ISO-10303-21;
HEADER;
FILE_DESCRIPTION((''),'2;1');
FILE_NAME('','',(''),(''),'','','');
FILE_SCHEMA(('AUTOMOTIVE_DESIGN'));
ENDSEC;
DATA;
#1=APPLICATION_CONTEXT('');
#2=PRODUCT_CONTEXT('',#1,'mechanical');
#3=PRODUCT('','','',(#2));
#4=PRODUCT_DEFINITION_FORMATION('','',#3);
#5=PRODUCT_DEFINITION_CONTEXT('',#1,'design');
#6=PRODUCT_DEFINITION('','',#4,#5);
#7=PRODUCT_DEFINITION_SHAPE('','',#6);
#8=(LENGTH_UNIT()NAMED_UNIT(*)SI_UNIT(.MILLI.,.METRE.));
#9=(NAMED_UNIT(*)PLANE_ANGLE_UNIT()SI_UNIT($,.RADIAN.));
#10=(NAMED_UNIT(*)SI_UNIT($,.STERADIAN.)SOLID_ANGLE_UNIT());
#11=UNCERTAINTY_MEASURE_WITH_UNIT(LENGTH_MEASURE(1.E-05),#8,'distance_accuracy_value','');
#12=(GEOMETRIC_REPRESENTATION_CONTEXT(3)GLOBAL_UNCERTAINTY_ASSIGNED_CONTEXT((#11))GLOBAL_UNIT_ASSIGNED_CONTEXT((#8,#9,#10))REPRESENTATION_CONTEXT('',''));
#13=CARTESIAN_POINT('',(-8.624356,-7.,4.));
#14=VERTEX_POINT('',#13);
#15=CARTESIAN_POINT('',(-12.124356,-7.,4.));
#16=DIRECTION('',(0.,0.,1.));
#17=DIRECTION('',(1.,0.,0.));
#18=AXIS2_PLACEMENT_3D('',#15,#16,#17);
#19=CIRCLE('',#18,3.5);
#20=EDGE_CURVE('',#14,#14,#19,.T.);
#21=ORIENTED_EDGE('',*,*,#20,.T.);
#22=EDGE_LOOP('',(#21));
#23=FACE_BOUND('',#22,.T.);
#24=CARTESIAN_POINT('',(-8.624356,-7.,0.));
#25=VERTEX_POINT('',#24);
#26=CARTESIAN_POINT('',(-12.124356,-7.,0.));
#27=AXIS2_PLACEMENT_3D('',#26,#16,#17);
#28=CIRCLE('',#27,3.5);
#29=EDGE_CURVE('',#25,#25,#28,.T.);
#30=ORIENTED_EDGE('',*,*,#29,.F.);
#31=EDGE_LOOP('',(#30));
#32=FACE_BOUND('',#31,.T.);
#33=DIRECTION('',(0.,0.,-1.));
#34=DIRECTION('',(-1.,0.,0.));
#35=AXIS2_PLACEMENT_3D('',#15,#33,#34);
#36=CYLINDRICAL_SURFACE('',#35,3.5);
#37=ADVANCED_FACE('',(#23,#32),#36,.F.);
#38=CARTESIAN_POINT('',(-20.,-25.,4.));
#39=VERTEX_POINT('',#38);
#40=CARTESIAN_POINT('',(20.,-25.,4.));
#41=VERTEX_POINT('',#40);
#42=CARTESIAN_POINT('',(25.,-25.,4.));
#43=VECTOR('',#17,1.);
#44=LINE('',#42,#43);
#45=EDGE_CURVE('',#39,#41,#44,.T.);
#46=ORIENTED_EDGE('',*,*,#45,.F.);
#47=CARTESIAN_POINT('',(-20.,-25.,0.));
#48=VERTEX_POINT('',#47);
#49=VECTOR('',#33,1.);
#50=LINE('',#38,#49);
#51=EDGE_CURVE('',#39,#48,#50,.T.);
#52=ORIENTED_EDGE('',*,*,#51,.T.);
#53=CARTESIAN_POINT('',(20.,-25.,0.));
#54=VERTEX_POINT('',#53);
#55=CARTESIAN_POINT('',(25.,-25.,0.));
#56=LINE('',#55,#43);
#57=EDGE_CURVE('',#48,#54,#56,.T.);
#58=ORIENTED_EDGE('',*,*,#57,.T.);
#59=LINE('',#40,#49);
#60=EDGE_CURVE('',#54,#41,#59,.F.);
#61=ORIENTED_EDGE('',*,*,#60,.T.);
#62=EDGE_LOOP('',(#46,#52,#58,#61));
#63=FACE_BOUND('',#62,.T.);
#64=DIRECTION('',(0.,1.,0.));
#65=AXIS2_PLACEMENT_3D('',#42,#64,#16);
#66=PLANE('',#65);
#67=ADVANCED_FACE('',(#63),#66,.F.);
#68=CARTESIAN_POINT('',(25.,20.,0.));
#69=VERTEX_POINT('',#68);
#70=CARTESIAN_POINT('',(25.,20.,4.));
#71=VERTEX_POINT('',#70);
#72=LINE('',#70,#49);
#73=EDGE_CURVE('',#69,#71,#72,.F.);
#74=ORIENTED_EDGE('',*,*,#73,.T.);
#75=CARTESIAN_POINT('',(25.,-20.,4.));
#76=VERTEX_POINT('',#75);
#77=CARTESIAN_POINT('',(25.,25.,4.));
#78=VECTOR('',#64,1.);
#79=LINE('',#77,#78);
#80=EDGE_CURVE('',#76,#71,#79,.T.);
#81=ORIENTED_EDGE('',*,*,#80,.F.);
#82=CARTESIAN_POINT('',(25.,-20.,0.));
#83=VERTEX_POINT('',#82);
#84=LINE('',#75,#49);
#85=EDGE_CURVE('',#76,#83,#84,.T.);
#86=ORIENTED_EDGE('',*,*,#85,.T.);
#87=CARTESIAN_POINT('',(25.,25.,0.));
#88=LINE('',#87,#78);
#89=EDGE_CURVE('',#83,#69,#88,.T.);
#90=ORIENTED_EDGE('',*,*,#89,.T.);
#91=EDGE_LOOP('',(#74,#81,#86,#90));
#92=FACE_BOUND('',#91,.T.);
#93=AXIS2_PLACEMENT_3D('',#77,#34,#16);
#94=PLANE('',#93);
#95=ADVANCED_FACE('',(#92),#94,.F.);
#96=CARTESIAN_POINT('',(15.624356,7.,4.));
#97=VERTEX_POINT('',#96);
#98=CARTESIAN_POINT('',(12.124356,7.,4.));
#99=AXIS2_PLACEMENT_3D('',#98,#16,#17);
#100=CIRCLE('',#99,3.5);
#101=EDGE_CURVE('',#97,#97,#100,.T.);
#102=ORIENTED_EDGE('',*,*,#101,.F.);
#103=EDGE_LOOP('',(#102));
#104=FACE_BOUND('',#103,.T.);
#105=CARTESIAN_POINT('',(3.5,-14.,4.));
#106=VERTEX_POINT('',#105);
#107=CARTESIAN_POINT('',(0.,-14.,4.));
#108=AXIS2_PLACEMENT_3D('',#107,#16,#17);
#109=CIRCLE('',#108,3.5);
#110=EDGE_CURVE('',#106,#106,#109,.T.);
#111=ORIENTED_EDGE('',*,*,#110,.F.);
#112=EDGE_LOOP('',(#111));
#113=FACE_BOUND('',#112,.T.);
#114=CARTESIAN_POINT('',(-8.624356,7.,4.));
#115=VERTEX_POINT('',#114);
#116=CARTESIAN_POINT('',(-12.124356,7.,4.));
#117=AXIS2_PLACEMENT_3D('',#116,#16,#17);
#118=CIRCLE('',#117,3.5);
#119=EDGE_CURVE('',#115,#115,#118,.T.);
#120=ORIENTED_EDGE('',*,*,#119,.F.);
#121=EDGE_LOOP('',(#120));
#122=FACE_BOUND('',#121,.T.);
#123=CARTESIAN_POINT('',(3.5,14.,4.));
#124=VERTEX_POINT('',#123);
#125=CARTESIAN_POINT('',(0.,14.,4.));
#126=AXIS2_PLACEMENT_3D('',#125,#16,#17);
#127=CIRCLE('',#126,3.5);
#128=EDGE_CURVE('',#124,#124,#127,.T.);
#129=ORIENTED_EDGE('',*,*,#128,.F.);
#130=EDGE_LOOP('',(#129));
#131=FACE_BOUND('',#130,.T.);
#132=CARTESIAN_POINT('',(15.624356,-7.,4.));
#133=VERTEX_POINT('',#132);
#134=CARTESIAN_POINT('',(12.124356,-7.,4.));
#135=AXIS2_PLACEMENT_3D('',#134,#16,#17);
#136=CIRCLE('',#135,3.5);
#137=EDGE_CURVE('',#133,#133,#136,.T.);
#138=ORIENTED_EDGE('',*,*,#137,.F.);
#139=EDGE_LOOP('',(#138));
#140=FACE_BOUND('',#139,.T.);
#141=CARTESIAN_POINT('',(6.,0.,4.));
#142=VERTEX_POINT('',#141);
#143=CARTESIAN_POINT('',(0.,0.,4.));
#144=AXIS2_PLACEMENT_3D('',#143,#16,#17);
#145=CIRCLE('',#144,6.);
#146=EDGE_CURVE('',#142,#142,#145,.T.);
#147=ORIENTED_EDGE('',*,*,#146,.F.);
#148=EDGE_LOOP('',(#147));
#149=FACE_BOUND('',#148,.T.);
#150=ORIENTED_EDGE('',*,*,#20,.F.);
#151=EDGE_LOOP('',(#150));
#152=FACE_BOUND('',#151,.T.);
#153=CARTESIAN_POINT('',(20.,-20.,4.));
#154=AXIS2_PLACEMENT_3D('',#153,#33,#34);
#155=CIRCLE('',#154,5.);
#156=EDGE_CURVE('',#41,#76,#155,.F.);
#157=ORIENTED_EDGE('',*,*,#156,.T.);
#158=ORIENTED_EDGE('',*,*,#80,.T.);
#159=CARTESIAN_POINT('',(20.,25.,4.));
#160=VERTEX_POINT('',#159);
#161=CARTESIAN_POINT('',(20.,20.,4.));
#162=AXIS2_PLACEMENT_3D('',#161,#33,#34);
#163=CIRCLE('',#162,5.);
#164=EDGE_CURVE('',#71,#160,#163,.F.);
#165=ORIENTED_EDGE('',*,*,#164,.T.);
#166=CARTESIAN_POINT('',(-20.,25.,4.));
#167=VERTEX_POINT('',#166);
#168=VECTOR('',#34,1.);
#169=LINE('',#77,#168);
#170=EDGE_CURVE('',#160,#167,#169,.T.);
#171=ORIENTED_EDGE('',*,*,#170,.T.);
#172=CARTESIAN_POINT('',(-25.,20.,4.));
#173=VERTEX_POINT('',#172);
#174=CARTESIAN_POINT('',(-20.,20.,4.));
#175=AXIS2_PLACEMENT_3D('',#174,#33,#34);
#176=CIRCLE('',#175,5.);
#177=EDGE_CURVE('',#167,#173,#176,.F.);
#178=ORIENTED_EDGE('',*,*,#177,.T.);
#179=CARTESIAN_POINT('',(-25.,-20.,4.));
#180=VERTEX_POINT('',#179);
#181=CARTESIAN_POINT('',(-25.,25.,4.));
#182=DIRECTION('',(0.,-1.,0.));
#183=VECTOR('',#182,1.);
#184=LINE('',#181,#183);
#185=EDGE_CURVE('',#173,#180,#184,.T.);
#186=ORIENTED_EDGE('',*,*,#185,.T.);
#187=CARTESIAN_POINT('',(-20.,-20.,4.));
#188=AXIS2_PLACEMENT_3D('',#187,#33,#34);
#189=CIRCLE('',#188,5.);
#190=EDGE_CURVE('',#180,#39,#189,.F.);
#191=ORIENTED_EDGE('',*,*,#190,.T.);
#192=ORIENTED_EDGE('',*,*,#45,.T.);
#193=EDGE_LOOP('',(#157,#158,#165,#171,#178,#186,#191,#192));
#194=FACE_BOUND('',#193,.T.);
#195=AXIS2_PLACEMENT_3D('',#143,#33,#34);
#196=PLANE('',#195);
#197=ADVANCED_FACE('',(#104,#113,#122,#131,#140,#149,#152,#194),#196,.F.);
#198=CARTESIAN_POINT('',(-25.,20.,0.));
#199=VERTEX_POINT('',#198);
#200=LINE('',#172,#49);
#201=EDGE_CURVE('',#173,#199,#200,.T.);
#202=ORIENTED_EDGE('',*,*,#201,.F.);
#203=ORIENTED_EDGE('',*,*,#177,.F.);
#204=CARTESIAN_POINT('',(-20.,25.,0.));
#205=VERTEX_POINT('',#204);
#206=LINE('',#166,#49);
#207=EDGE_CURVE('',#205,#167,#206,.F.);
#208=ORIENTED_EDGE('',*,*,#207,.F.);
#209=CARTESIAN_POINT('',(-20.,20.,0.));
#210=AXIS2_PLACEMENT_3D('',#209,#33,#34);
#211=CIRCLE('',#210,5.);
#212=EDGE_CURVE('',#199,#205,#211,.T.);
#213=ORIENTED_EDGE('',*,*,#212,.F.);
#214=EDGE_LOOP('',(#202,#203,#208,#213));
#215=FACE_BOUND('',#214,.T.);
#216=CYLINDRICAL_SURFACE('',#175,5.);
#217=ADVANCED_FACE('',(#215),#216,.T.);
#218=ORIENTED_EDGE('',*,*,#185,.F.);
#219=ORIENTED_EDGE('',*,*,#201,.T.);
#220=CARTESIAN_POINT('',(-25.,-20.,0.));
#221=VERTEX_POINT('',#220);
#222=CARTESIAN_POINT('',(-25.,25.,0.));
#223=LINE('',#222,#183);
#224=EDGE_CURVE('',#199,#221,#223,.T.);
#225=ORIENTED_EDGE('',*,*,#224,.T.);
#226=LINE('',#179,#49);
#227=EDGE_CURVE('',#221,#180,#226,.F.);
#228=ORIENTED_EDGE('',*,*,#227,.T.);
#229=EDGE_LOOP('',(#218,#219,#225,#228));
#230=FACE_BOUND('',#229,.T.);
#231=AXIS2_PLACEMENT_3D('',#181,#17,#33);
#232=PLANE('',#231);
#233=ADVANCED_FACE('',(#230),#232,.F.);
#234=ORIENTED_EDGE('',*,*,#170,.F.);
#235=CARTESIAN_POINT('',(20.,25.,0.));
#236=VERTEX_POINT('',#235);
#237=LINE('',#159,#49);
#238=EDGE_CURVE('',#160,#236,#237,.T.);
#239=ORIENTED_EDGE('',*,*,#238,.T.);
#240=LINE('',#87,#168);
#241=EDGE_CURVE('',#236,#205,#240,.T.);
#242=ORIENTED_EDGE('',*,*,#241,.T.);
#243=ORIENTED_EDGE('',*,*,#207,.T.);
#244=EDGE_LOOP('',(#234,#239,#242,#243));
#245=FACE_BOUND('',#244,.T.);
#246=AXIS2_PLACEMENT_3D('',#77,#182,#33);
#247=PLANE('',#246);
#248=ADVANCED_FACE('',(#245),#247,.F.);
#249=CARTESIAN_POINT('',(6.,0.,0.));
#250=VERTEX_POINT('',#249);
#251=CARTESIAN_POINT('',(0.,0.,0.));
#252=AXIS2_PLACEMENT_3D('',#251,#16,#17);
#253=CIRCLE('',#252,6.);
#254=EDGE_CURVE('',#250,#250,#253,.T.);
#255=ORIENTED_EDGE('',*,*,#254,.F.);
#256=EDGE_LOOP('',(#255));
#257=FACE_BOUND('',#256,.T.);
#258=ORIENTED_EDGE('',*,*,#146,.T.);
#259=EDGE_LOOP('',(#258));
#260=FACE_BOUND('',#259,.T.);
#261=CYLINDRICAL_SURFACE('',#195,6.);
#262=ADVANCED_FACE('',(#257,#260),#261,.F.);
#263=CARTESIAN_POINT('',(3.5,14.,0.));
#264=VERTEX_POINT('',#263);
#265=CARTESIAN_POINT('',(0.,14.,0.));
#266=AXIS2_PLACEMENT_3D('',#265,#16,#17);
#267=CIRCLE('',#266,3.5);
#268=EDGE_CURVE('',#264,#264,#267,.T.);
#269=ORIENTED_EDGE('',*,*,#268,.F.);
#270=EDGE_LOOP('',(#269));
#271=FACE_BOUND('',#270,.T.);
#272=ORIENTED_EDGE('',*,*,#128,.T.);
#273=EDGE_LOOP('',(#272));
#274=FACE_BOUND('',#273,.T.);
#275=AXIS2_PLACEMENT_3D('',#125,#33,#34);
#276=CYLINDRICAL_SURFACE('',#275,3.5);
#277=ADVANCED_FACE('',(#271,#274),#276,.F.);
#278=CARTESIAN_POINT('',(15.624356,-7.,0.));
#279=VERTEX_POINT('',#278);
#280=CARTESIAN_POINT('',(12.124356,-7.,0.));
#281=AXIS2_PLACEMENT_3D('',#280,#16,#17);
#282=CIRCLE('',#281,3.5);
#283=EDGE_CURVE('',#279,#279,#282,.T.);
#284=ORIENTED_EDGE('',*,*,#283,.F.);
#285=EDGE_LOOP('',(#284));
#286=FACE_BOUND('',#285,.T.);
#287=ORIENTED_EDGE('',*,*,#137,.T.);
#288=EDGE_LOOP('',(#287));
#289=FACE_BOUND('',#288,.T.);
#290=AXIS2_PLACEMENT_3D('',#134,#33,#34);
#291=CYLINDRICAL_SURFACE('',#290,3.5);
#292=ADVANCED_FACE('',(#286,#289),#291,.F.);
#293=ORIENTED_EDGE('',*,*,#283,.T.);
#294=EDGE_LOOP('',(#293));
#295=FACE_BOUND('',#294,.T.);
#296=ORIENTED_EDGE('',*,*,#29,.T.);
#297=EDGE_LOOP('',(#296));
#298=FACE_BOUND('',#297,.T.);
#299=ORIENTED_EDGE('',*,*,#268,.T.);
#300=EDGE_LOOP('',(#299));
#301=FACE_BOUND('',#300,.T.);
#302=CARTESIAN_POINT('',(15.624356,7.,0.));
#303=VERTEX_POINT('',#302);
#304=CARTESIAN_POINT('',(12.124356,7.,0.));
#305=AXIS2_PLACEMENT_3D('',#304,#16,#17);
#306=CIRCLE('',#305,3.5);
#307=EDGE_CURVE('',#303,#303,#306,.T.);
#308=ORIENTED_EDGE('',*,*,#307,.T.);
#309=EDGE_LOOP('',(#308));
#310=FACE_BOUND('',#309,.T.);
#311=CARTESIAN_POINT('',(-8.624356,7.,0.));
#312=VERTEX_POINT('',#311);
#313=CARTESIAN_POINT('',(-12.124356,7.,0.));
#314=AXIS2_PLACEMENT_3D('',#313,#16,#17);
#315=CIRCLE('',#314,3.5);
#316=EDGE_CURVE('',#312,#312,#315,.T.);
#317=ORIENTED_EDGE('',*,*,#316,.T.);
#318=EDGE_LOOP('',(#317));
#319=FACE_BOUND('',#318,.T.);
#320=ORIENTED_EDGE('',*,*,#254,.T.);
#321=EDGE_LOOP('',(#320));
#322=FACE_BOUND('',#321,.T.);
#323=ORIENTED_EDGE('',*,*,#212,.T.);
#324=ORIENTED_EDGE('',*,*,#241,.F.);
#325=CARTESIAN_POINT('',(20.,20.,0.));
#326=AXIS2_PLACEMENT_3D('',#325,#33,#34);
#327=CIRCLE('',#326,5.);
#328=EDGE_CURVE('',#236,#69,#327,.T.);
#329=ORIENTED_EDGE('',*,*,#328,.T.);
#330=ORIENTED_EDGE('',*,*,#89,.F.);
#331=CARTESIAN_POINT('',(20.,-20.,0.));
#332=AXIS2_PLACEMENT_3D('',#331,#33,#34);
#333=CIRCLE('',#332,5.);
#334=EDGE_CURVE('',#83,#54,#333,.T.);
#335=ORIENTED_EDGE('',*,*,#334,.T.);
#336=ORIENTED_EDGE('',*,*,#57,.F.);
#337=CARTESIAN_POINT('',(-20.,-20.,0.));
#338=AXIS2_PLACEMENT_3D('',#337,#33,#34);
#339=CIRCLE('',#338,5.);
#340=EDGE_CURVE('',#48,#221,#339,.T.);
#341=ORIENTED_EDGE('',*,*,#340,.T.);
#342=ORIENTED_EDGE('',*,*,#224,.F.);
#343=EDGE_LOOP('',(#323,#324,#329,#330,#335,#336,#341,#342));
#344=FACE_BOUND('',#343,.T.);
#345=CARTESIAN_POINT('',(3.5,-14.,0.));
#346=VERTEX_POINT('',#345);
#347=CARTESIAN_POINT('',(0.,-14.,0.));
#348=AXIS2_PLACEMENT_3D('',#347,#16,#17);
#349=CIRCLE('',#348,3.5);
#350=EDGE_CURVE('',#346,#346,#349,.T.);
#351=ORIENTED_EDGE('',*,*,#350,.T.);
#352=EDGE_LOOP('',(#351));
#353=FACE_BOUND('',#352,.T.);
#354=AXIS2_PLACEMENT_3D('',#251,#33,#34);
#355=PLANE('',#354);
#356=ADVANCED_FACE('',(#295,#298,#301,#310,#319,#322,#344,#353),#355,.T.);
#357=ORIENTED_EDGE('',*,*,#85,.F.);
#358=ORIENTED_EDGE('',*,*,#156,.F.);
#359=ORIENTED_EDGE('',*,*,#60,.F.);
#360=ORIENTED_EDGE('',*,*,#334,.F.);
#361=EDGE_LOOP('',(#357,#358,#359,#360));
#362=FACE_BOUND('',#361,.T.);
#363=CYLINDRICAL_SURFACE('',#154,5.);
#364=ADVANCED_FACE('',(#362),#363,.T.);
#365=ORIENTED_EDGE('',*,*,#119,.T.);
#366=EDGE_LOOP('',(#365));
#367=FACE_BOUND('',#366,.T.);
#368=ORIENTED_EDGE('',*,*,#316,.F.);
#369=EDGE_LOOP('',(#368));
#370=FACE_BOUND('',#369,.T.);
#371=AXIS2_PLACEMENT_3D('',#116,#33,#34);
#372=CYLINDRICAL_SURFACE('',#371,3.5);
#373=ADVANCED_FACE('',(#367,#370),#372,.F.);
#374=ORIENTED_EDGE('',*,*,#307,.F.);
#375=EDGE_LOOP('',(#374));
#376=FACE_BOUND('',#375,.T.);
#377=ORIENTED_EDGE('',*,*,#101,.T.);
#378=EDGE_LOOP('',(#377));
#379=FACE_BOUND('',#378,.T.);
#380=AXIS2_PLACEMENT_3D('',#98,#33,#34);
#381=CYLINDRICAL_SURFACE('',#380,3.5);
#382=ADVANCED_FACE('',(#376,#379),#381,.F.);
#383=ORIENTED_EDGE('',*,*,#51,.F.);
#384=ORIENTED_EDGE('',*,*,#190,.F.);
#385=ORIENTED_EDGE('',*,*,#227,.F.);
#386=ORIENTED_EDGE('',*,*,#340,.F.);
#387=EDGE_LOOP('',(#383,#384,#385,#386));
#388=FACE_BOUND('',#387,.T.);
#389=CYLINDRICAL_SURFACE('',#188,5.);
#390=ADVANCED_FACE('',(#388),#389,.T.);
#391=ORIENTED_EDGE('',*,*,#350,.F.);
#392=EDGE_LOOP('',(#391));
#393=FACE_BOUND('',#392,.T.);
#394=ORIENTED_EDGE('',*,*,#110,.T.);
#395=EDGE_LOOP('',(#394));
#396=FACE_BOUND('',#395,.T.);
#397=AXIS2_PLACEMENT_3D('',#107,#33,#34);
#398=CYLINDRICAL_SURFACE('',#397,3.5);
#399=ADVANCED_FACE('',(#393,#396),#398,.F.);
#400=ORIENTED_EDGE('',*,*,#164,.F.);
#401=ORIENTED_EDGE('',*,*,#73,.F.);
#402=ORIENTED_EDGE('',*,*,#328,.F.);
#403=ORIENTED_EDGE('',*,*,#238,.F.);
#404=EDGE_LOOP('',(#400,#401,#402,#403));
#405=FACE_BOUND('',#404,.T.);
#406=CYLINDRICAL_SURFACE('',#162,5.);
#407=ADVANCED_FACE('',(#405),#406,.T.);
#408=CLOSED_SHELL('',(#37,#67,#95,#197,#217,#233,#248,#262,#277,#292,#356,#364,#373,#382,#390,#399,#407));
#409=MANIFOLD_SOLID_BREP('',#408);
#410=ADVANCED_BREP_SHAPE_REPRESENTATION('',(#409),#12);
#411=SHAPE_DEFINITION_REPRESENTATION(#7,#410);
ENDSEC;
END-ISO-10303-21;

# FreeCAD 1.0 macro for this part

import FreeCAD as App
import Part
import Sketcher
Q = App.Units.Quantity


def edges_at(feature, points):
    """Names of the edges that pass closest to the given points."""
    edges = feature.Shape.Edges
    near = lambda p: min(range(len(edges)), key=lambda i: edges[i].distToShape(Part.Vertex(*p))[0])
    return sorted({f"Edge{near(p) + 1}" for p in points})

doc = App.newDocument("Part")
body = doc.addObject("PartDesign::Body", "Body")

# Sketch on XY plane
sketch1 = doc.addObject("Sketcher::SketchObject", "Sketch")
body.addObject(sketch1)
sketch1.AttachmentSupport = (doc.XY_Plane, [""])
sketch1.MapMode = "FlatFace"
sketch1.addGeometry(Part.LineSegment(App.Vector(-25, 25, 0), App.Vector(-25, -25, 0)), False)
sketch1.addGeometry(Part.LineSegment(App.Vector(-25, -25, 0), App.Vector(25, -25, 0)), False)
sketch1.addGeometry(Part.LineSegment(App.Vector(25, -25, 0), App.Vector(25, 25, 0)), False)
sketch1.addGeometry(Part.LineSegment(App.Vector(25, 25, 0), App.Vector(-25, 25, 0)), False)
sketch1.addGeometry(Part.Circle(App.Vector(-12.1, -7, 0), App.Vector(0, 0, 1), 3.5), False)
sketch1.addGeometry(Part.Circle(App.Vector(0, -14, 0), App.Vector(0, 0, 1), 3.5), False)
sketch1.addGeometry(Part.Circle(App.Vector(12.1, -7, 0), App.Vector(0, 0, 1), 3.5), False)
sketch1.addGeometry(Part.Circle(App.Vector(-12.1, 7, 0), App.Vector(0, 0, 1), 3.5), False)
sketch1.addGeometry(Part.Circle(App.Vector(0, 0, 0), App.Vector(0, 0, 1), 6), False)
sketch1.addGeometry(Part.Circle(App.Vector(12.1, 7, 0), App.Vector(0, 0, 1), 3.5), False)
sketch1.addGeometry(Part.Circle(App.Vector(0, 14, 0), App.Vector(0, 0, 1), 3.5), False)
sketch1.addConstraint(Sketcher.Constraint("Coincident", 0, 2, 1, 1))
sketch1.addConstraint(Sketcher.Constraint("Coincident", 1, 2, 2, 1))
sketch1.addConstraint(Sketcher.Constraint("Coincident", 2, 2, 3, 1))
sketch1.addConstraint(Sketcher.Constraint("Coincident", 3, 2, 0, 1))
sketch1.addConstraint(Sketcher.Constraint("Vertical", 0))
sketch1.addConstraint(Sketcher.Constraint("Horizontal", 1))
sketch1.addConstraint(Sketcher.Constraint("Vertical", 2))
sketch1.addConstraint(Sketcher.Constraint("Horizontal", 3))
sketch1.addConstraint(Sketcher.Constraint("Coincident", 8, 3, -1, 1))
sketch1.addConstraint(Sketcher.Constraint("Equal", 4, 5))
sketch1.addConstraint(Sketcher.Constraint("Equal", 5, 6))
sketch1.addConstraint(Sketcher.Constraint("Equal", 6, 7))
sketch1.addConstraint(Sketcher.Constraint("Equal", 7, 9))
sketch1.addConstraint(Sketcher.Constraint("Equal", 9, 10))
sketch1.addConstraint(Sketcher.Constraint("Symmetric", 6, 3, 7, 3, -1, 1))
sketch1.addConstraint(Sketcher.Constraint("Symmetric", 4, 3, 9, 3, -1, 1))
sketch1.addConstraint(Sketcher.Constraint("Symmetric", 5, 3, 10, 3, -1, 1))
sketch1.addConstraint(Sketcher.Constraint("Symmetric", 0, 2, 2, 2, -1, 1))
sketch1.addConstraint(Sketcher.Constraint("Symmetric", 4, 3, 6, 3, -2))
sketch1.addConstraint(Sketcher.Constraint("PointOnObject", 5, 3, -2))
sketch1.addConstraint(Sketcher.Constraint("Equal", 3, 0))
sketch1.addConstraint(Sketcher.Constraint("Diameter", 4, Q("7 mm")))
sketch1.addConstraint(Sketcher.Constraint("Diameter", 8, Q("12 mm")))
sketch1.addConstraint(Sketcher.Constraint("DistanceX", 1, 1, 1, 2, Q("50 mm")))
sketch1.addConstraint(Sketcher.Constraint("DistanceY", 4, 3, -1, 1, Q("7 mm")))
sketch1.addConstraint(Sketcher.Constraint("DistanceY", 5, 3, -1, 1, Q("14 mm")))
sketch1.addConstraint(Sketcher.Constraint("DistanceX", 4, 3, 6, 3, Q("24.248711 mm")))
pad1 = doc.addObject("PartDesign::Pad", "Pad")
body.addObject(pad1)
pad1.Profile = sketch1
pad1.Length = 4
doc.recompute()

fillet = doc.addObject("PartDesign::Fillet", "Fillet")
body.addObject(fillet)
fillet.Base = (pad1, edges_at(pad1, [
    (-25, 25, 2),
    (25, 25, 2),
    (25, -25, 2),
    (-25, -25, 2),
]))
fillet.Radius = 5

doc.recompute()
